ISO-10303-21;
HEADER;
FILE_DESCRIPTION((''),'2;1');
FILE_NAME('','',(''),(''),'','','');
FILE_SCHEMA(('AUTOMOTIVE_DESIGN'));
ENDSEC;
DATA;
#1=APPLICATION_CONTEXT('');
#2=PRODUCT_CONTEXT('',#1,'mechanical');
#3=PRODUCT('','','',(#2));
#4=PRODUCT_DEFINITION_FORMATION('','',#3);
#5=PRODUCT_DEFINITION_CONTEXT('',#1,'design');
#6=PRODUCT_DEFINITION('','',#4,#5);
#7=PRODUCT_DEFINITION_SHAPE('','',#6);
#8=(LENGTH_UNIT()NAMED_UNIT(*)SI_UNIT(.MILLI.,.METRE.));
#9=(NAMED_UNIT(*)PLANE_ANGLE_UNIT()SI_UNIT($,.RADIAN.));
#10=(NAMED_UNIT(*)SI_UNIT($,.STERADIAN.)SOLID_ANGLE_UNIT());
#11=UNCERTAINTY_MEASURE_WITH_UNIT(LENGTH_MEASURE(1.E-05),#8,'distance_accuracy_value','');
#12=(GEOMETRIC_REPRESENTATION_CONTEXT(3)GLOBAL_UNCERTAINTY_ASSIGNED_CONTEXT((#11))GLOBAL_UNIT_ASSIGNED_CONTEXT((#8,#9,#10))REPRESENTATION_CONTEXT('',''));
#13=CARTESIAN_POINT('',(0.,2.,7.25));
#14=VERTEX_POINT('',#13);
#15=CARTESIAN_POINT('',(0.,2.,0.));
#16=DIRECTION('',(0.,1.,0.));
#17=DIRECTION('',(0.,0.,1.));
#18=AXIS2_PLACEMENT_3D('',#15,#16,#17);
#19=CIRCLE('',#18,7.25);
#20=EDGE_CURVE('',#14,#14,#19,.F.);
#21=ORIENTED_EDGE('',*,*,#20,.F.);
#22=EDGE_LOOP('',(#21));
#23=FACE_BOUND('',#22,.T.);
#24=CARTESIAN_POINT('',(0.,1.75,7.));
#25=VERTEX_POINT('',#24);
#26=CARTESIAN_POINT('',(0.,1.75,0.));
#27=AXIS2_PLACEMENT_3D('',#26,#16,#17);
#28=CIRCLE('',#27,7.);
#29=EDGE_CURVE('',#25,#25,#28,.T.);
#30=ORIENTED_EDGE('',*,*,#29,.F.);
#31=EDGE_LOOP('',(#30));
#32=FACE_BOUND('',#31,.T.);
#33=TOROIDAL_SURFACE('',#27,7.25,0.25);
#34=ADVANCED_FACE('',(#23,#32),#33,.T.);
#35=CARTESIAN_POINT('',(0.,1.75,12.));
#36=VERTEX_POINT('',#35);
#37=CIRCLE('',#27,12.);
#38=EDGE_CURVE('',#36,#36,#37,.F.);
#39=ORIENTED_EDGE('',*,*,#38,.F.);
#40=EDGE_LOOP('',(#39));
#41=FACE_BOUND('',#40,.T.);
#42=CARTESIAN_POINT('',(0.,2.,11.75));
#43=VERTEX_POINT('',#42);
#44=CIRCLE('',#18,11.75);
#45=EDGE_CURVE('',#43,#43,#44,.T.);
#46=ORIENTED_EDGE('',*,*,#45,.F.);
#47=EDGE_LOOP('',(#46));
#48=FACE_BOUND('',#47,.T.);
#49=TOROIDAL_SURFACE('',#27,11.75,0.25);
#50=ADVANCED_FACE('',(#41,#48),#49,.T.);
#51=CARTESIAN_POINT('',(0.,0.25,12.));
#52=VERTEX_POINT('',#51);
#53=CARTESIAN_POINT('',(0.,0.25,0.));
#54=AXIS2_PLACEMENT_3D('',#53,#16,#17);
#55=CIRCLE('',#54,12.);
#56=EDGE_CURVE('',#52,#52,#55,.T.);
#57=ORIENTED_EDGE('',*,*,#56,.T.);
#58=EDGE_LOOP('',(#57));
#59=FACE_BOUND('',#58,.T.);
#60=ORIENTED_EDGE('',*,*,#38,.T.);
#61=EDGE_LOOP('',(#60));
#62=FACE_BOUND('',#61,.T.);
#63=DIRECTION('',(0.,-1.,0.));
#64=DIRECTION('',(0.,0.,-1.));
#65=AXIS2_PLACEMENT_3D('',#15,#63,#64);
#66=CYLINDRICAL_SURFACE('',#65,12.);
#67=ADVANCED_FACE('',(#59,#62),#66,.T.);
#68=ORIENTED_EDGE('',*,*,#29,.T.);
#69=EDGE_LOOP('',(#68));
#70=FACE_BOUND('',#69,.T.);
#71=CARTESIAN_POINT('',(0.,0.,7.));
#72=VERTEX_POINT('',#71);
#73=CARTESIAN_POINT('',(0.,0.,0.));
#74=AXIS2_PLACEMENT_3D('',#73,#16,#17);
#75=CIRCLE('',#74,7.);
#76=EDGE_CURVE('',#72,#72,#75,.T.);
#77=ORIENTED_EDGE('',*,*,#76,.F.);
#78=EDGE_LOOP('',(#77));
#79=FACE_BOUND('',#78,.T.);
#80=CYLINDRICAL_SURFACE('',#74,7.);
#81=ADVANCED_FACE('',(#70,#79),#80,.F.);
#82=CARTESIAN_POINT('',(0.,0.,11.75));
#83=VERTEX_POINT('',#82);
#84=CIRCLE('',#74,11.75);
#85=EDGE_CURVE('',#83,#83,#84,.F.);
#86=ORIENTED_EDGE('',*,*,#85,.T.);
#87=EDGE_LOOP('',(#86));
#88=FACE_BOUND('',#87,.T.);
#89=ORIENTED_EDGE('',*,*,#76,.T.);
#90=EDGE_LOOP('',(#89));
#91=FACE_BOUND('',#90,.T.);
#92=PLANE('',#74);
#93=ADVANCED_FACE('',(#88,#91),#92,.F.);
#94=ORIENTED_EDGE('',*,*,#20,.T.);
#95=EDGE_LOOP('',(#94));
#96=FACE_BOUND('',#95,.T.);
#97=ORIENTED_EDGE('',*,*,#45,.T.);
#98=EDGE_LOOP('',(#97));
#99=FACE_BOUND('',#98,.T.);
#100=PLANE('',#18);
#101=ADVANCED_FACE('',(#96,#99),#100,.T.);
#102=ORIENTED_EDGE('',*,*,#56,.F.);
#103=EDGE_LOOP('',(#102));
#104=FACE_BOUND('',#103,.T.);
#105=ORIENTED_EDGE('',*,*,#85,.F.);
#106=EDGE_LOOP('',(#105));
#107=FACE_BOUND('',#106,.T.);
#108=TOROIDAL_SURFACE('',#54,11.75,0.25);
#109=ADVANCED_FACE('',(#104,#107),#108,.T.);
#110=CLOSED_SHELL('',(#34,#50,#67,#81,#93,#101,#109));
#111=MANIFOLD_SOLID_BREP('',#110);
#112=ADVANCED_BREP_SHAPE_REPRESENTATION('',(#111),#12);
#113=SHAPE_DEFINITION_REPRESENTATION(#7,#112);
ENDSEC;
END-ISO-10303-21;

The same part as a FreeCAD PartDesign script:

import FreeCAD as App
import Part
import Sketcher

V = App.Vector
Q = App.Units.Quantity


def edges_at(feature, points):
    """Names of the edges that pass closest to the given points."""
    edges = feature.Shape.Edges
    near = lambda p: min(range(len(edges)), key=lambda i: edges[i].distToShape(Part.Vertex(*p))[0])
    return sorted({f"Edge{near(p) + 1}" for p in points})

doc = App.newDocument("Part")
params = doc.addObject("Spreadsheet::Sheet", "Params")
for row, (alias, value) in enumerate([
    ("sketch1_diameter", "24 mm"),
    ("pad1_length", "2 mm"),
    ("sketch2_diameter", "14 mm"),
    ("fillet_radius", "0.25 mm"),
], start=1):
    params.set(f"A{row}", alias)
    params.set(f"B{row}", "=" + value)
    params.setAlias(f"B{row}", alias)

body = doc.addObject("PartDesign::Body", "Body")

sketch1 = body.newObject("Sketcher::SketchObject", "Sketch")
sketch1.AttachmentSupport = (doc.getObject("XZ_Plane"), [""])
sketch1.MapMode = "FlatFace"
sketch1.addGeometry(Part.Circle(V(0, 0, 0), V(0, 0, 1), 12), False)
sketch1.addConstraint([
    Sketcher.Constraint("Coincident", 0, 3, -1, 1),
    Sketcher.Constraint("Diameter", 0, Q("24 mm")),
])
sketch1.setExpression("Constraints[1]", "Params.sketch1_diameter")
pad1 = body.newObject("PartDesign::Pad", "Pad")
pad1.Profile = sketch1
pad1.setExpression("Length", "Params.pad1_length")
pad1.Reversed = True

sketch2 = body.newObject("Sketcher::SketchObject", "Sketch001")
sketch2.AttachmentSupport = (doc.getObject("XZ_Plane"), [""])
sketch2.MapMode = "FlatFace"
sketch2.AttachmentOffset = App.Placement(V(0, 0, -2), App.Rotation())
sketch2.addGeometry(Part.Circle(V(0, 0, 0), V(0, 0, 1), 7), False)
sketch2.addConstraint([
    Sketcher.Constraint("Coincident", 0, 3, -1, 1),
    Sketcher.Constraint("Diameter", 0, Q("14 mm")),
])
sketch2.setExpression("Constraints[1]", "Params.sketch2_diameter")
pocket1 = body.newObject("PartDesign::Pocket", "Pocket")
pocket1.Profile = sketch2
pocket1.Type = "ThroughAll"
pocket1.Reversed = True
doc.recompute()

fillet = body.newObject("PartDesign::Fillet", "Fillet")
fillet.Base = (pocket1, edges_at(pocket1, [(0, 0, -12), (0, 2, -12), (0, 2, -7)]))
fillet.setExpression("Radius", "Params.fillet_radius")

doc.recompute()
